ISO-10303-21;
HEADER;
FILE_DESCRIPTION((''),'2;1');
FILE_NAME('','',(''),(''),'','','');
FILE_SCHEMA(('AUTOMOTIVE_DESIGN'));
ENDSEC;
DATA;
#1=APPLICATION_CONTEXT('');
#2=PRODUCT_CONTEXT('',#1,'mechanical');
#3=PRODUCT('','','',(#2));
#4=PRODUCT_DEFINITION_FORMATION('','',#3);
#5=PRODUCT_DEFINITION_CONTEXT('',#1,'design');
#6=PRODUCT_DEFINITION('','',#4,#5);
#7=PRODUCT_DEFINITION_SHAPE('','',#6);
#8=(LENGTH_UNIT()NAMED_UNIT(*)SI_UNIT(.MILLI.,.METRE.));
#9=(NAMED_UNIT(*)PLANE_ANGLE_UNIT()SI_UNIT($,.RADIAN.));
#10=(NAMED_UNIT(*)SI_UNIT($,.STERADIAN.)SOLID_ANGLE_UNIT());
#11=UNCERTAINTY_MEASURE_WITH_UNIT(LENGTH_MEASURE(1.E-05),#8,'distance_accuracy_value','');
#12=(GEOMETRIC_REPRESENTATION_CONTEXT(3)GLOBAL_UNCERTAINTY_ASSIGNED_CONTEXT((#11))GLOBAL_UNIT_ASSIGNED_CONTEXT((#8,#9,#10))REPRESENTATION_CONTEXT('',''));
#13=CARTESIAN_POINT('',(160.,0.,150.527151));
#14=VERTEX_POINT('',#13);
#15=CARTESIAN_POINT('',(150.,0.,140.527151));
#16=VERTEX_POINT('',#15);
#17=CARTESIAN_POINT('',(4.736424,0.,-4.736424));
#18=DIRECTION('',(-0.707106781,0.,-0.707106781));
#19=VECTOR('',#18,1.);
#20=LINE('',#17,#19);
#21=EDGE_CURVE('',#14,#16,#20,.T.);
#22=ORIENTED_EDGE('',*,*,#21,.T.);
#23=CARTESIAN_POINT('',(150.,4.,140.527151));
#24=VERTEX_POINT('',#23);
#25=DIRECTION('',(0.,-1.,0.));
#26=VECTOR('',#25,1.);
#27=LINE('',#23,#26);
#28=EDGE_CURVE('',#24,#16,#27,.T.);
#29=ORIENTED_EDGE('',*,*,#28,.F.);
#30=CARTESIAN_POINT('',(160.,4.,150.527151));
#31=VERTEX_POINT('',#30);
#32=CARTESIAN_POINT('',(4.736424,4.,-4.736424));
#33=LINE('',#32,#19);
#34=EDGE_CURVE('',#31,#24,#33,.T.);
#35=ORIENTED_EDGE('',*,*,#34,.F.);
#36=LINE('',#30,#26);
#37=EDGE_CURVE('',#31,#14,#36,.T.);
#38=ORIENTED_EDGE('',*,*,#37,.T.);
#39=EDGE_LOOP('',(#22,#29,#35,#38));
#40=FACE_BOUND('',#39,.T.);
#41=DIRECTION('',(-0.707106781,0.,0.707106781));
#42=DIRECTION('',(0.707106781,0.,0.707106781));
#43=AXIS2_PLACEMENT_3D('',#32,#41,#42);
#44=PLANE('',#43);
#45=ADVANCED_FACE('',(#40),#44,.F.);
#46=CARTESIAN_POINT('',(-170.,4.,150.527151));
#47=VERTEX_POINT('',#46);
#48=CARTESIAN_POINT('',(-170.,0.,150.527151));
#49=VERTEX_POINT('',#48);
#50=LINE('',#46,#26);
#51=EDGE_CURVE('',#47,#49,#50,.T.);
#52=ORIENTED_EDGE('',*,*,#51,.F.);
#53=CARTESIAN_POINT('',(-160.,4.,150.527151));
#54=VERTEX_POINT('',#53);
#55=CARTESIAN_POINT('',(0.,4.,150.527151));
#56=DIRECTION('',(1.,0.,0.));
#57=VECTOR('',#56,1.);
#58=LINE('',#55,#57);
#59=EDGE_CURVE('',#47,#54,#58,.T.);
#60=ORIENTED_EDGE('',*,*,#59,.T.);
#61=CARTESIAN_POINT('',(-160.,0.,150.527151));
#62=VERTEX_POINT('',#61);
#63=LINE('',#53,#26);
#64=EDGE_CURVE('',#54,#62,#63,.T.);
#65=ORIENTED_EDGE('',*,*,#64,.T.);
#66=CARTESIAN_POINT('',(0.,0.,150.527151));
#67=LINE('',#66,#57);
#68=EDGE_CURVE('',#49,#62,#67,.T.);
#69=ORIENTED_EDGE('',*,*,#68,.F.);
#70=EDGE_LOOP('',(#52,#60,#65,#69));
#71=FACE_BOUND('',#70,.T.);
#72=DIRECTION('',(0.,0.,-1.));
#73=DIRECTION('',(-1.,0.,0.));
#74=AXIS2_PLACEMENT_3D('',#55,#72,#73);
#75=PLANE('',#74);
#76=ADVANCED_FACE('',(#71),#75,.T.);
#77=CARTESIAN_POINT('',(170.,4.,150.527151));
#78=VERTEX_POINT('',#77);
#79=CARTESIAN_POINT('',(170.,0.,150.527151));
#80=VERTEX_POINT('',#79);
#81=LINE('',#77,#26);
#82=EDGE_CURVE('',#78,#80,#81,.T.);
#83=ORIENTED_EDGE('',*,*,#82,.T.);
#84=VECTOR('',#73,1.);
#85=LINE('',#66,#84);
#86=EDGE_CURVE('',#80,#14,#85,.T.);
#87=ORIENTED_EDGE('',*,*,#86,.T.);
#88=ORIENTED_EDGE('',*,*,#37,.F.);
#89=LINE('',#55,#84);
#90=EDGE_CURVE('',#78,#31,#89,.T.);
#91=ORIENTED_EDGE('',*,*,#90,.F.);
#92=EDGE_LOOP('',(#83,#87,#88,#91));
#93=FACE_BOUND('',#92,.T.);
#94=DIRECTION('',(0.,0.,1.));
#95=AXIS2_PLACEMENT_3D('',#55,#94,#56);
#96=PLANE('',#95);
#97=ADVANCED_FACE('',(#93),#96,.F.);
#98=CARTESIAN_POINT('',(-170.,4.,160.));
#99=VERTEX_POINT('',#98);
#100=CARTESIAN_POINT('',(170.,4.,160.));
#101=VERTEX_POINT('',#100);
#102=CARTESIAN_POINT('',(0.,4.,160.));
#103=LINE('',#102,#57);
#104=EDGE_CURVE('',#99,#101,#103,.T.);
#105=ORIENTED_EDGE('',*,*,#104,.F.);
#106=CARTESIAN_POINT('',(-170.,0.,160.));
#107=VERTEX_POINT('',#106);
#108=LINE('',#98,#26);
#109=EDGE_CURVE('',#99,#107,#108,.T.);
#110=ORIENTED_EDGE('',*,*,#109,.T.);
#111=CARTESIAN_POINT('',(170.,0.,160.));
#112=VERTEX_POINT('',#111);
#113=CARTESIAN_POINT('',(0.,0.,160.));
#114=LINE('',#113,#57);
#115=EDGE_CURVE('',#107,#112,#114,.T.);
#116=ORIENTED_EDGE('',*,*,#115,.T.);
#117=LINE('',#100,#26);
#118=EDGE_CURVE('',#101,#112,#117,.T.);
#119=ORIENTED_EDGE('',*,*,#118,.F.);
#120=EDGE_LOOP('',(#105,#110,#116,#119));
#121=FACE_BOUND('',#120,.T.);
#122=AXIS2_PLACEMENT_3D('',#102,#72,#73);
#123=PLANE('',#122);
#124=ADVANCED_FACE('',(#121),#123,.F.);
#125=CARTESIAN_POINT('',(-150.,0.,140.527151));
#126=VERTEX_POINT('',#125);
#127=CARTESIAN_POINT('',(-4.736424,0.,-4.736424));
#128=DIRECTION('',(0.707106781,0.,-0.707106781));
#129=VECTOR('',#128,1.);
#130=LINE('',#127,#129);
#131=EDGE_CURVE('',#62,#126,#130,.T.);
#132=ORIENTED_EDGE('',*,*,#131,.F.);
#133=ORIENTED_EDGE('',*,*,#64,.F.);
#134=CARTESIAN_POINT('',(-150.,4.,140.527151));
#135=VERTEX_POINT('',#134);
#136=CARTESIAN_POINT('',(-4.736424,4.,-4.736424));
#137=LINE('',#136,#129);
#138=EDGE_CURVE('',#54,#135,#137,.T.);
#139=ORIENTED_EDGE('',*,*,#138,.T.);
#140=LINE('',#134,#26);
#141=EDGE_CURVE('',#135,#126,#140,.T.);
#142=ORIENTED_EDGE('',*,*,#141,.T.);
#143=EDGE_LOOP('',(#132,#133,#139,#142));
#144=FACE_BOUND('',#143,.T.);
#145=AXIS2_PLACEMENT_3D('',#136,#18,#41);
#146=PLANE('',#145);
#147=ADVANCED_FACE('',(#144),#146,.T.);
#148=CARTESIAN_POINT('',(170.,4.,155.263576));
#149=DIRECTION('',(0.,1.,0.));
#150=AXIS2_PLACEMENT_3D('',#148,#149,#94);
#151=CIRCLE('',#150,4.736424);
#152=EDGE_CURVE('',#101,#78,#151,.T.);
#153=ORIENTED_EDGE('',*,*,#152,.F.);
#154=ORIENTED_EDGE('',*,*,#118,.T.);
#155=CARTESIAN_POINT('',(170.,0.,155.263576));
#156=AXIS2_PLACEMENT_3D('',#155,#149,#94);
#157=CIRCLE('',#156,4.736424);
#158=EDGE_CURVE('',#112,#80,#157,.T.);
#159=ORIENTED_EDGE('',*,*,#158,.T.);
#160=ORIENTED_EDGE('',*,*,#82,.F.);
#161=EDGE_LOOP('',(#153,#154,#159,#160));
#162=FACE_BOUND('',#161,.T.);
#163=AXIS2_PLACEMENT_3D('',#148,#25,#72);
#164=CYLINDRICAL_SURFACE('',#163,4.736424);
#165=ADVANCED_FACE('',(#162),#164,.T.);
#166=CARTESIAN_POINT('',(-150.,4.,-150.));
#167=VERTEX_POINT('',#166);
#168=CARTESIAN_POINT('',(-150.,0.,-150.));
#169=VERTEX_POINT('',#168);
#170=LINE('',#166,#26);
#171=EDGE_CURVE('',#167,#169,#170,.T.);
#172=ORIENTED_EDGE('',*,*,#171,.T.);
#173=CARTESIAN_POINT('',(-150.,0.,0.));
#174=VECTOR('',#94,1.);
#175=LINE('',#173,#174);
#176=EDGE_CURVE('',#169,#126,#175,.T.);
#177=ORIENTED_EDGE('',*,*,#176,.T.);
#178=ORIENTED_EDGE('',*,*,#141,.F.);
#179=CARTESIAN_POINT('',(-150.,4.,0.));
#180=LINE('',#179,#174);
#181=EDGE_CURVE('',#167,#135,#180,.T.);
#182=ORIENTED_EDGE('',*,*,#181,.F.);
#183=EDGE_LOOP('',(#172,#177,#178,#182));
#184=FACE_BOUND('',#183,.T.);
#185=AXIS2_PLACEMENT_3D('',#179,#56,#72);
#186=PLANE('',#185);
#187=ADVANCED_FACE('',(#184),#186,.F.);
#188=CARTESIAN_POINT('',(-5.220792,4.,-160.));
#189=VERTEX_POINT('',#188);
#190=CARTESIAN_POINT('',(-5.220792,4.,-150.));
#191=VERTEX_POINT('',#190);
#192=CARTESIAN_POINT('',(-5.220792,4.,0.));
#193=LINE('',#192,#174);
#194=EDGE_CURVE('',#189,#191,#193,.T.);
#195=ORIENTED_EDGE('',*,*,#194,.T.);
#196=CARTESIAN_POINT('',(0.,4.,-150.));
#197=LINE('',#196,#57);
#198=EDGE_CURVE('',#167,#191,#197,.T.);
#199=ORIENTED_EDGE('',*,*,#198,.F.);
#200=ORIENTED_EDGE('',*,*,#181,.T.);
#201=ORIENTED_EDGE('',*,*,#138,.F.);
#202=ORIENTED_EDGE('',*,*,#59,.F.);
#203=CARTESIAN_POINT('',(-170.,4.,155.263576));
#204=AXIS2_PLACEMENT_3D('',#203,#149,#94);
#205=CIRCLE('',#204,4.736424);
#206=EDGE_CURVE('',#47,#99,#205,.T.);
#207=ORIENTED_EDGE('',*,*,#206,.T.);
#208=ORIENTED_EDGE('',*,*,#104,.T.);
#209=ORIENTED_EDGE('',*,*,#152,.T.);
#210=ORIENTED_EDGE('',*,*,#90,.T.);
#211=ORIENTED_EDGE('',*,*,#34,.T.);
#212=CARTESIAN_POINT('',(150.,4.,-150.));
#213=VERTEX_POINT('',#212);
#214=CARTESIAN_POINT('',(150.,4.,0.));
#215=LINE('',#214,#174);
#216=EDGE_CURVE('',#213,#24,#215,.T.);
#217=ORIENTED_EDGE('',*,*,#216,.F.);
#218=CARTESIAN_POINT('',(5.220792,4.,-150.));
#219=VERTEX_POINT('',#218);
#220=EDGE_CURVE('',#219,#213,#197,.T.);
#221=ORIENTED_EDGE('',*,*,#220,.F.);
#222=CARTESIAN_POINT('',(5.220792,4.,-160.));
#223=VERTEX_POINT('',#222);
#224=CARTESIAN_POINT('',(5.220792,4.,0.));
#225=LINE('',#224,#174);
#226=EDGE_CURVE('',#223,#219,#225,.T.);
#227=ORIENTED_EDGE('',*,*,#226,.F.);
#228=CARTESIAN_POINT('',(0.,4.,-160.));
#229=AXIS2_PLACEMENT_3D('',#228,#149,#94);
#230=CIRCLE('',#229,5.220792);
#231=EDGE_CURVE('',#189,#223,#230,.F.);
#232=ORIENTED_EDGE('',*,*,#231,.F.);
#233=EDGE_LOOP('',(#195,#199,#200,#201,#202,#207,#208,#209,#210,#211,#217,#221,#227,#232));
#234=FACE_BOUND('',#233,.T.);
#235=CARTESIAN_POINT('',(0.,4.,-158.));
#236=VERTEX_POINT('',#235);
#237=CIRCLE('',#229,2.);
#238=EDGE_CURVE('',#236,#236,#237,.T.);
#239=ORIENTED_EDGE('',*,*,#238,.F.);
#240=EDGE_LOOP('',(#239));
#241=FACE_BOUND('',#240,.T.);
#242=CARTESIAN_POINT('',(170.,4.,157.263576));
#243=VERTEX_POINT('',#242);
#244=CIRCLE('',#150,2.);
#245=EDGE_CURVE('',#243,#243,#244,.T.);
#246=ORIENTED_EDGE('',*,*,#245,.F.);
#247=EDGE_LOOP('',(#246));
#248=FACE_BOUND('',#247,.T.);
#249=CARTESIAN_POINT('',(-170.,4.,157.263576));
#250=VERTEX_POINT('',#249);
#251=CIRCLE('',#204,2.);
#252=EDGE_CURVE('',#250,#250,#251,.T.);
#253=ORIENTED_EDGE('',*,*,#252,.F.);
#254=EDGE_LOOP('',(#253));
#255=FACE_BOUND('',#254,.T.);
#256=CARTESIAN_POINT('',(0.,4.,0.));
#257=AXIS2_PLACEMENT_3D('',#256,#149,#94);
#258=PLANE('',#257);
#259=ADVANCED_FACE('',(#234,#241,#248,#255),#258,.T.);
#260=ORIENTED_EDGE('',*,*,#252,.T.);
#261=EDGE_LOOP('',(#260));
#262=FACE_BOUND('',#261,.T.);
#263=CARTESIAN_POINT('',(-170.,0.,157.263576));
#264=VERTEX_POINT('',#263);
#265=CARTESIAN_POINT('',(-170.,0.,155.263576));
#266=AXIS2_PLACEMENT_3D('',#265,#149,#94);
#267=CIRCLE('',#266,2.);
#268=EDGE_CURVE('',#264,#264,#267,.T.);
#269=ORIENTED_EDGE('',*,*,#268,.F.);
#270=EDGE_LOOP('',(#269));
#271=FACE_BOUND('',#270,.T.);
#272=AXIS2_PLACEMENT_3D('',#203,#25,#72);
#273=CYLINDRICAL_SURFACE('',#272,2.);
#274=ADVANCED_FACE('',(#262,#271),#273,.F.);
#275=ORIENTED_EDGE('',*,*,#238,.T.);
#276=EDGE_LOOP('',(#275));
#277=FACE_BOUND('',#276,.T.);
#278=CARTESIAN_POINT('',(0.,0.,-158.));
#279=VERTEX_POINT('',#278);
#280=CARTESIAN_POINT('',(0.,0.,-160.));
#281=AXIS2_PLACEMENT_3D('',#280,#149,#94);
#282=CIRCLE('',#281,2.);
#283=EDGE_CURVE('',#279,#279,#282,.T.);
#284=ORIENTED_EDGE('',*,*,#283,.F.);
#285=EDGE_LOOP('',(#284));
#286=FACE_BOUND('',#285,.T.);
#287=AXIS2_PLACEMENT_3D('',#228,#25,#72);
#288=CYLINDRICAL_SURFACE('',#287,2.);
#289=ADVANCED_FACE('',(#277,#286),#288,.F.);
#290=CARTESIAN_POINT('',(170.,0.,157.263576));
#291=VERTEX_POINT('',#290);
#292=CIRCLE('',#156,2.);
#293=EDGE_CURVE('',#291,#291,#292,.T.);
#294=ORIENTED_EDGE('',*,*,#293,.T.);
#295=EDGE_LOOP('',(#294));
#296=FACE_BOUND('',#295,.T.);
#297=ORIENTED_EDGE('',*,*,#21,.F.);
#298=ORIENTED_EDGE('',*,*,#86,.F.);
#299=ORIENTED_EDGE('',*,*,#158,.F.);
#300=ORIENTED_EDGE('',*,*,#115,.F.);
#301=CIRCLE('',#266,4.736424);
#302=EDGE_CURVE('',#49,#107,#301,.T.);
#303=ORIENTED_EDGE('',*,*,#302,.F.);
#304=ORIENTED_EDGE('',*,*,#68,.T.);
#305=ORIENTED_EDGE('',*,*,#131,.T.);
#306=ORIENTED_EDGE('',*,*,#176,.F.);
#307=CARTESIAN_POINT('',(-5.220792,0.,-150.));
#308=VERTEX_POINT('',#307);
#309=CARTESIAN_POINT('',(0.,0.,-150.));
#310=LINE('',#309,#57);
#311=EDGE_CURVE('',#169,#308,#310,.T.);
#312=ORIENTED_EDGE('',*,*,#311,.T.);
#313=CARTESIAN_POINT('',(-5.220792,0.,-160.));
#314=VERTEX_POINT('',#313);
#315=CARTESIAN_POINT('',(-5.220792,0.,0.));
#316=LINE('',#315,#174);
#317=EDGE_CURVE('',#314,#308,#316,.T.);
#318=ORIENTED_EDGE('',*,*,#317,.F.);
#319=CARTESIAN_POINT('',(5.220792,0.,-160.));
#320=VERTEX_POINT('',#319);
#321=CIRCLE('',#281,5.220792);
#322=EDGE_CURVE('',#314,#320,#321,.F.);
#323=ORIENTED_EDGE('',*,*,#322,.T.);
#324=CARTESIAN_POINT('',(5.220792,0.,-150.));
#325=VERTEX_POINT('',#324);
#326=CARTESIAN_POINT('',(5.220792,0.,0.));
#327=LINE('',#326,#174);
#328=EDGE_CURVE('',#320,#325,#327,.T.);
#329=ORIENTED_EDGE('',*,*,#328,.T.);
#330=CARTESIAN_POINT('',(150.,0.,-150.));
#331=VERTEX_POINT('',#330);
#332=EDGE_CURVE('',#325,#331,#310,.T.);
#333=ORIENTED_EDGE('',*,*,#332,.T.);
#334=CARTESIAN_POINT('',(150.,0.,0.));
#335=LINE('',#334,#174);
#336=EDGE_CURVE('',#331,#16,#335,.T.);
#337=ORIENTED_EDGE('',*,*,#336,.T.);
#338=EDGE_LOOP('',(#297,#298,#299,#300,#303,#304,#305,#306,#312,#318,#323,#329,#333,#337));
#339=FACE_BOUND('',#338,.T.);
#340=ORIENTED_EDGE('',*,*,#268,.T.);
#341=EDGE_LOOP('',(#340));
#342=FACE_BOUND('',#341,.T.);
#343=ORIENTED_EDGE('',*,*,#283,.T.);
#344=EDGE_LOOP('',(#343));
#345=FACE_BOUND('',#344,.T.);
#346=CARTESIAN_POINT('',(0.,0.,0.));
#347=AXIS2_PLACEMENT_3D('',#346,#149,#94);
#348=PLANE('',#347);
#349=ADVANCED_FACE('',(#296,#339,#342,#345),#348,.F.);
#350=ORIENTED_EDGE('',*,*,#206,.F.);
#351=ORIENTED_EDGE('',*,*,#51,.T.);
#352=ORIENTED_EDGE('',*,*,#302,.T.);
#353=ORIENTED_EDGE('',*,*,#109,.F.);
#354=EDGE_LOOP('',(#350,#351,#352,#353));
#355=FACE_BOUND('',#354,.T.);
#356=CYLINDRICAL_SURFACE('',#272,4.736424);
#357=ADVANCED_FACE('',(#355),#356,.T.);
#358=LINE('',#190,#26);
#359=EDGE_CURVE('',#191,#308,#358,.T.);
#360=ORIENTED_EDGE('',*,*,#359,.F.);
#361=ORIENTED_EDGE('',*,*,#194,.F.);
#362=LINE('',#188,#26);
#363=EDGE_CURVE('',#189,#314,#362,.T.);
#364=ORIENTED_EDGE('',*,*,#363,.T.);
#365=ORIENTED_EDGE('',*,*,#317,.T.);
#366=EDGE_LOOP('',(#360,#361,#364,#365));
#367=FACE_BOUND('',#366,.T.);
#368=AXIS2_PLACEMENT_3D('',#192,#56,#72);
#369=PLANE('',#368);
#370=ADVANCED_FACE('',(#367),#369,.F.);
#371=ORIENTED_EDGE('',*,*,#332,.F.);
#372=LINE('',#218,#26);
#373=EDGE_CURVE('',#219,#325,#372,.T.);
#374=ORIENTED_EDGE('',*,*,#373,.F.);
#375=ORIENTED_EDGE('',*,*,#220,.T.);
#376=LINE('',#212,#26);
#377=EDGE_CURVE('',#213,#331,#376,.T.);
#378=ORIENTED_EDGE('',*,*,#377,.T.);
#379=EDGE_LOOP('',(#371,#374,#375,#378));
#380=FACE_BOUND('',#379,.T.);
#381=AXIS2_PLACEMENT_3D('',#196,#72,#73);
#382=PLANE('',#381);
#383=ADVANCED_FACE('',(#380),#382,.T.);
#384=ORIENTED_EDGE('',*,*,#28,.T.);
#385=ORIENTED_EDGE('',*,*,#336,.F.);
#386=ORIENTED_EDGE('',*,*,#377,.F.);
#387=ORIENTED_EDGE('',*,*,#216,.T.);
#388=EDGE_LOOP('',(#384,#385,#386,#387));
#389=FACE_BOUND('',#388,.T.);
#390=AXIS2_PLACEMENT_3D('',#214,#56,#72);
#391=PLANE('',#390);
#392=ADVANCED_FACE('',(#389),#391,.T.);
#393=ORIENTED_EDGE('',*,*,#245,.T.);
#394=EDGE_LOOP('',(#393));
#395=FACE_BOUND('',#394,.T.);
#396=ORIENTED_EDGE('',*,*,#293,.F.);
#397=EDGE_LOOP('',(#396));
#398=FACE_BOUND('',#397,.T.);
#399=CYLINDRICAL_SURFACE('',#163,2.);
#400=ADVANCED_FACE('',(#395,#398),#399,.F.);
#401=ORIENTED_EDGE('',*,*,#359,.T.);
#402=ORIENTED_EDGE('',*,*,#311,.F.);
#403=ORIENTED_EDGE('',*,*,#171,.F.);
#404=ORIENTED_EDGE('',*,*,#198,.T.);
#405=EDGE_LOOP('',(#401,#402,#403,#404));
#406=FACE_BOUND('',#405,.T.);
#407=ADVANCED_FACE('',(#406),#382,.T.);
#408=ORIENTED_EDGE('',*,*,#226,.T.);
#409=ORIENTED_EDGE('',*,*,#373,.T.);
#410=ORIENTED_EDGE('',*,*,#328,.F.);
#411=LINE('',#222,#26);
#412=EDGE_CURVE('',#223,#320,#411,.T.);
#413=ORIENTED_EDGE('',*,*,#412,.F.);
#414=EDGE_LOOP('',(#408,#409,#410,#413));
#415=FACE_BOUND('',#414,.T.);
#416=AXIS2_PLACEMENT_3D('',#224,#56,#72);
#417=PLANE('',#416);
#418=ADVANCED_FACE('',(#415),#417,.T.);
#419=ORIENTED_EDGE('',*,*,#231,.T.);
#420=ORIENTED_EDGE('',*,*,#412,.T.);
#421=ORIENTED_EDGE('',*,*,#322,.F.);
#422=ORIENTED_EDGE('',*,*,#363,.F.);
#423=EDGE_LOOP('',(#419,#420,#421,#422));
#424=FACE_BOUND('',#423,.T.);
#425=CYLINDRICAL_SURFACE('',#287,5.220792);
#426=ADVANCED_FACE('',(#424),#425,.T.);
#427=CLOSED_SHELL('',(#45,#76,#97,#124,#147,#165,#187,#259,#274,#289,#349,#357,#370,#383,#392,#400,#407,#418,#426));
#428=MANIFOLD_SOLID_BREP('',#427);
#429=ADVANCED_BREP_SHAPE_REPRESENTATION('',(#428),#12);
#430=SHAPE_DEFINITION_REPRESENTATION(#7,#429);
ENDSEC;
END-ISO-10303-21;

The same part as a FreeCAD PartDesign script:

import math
import FreeCAD as App
import Part
import Sketcher

doc = App.newDocument("Part")
body = doc.addObject("PartDesign::Body", "Body")

sketch1 = body.newObject("Sketcher::SketchObject", "Sketch")
sketch1.AttachmentSupport = (doc.getObject("XZ_Plane"), [""])
sketch1.MapMode = "FlatFace"
sketch1.addGeometry([
    Part.ArcOfCircle(Part.Circle(App.Vector(0, -160, 0), App.Vector(0, 0, 1), 5.2), math.radians(180), math.radians(360)),
    Part.LineSegment(App.Vector(-5.2, -160, 0), App.Vector(-5.2, -150, 0)),
    Part.LineSegment(App.Vector(-5.2, -150, 0), App.Vector(-150, -150, 0)),
    Part.LineSegment(App.Vector(-150, -150, 0), App.Vector(-150, 140.5, 0)),
    Part.LineSegment(App.Vector(-150, 140.5, 0), App.Vector(-160, 150.5, 0)),
    Part.LineSegment(App.Vector(-160, 150.5, 0), App.Vector(-170, 150.5, 0)),
    Part.ArcOfCircle(Part.Circle(App.Vector(-170, 155.3, 0), App.Vector(0, 0, 1), 4.7), math.radians(90), math.radians(270)),
    Part.LineSegment(App.Vector(-170, 160, 0), App.Vector(170, 160, 0)),
    Part.ArcOfCircle(Part.Circle(App.Vector(170, 155.3, 0), App.Vector(0, 0, 1), 4.7), math.radians(-90), math.radians(90)),
    Part.LineSegment(App.Vector(170, 150.5, 0), App.Vector(160, 150.5, 0)),
    Part.LineSegment(App.Vector(160, 150.5, 0), App.Vector(150, 140.5, 0)),
    Part.LineSegment(App.Vector(150, 140.5, 0), App.Vector(150, -150, 0)),
    Part.LineSegment(App.Vector(150, -150, 0), App.Vector(5.2, -150, 0)),
    Part.LineSegment(App.Vector(5.2, -150, 0), App.Vector(5.2, -160, 0)),
    Part.Circle(App.Vector(170, 155.3, 0), App.Vector(0, 0, 1), 2),
    Part.Circle(App.Vector(-170, 155.3, 0), App.Vector(0, 0, 1), 2),
    Part.Circle(App.Vector(0, -160, 0), App.Vector(0, 0, 1), 2),
], False)
sketch1.addConstraint([
    Sketcher.Constraint("Tangent", 0, 1, 1, 1),
    Sketcher.Constraint("Coincident", 1, 2, 2, 1),
    Sketcher.Constraint("Coincident", 2, 2, 3, 1),
    Sketcher.Constraint("Coincident", 3, 2, 4, 1),
    Sketcher.Constraint("Coincident", 4, 2, 5, 1),
    Sketcher.Constraint("Tangent", 5, 2, 6, 2),
    Sketcher.Constraint("Tangent", 6, 1, 7, 1),
    Sketcher.Constraint("Tangent", 7, 2, 8, 2),
    Sketcher.Constraint("Tangent", 8, 1, 9, 1),
    Sketcher.Constraint("Coincident", 9, 2, 10, 1),
    Sketcher.Constraint("Coincident", 10, 2, 11, 1),
    Sketcher.Constraint("Coincident", 11, 2, 12, 1),
    Sketcher.Constraint("Coincident", 12, 2, 13, 1),
    Sketcher.Constraint("Tangent", 13, 2, 0, 2),
    Sketcher.Constraint("Vertical", 1),
    Sketcher.Constraint("Horizontal", 2),
    Sketcher.Constraint("Vertical", 3),
    Sketcher.Constraint("Horizontal", 5),
    Sketcher.Constraint("Horizontal", 7),
    Sketcher.Constraint("Horizontal", 9),
    Sketcher.Constraint("Vertical", 11),
    Sketcher.Constraint("Horizontal", 12),
    Sketcher.Constraint("Vertical", 13),
    Sketcher.Constraint("Coincident", 14, 3, 8, 3),
    Sketcher.Constraint("Coincident", 15, 3, 6, 3),
    Sketcher.Constraint("Coincident", 16, 3, 0, 3),
    Sketcher.Constraint("Equal", 6, 8),
    Sketcher.Constraint("Equal", 14, 15),
    Sketcher.Constraint("Equal", 15, 16),
    Sketcher.Constraint("Symmetric", 3, 2, 10, 2, -2),
    Sketcher.Constraint("Symmetric", 1, 2, 12, 2, -2),
    Sketcher.Constraint("Perpendicular", 4, 10),
    Sketcher.Constraint("Equal", 5, 9),
    Sketcher.Constraint("Equal", 9, 1),
    Sketcher.Constraint("Equal", 4, 10),
    Sketcher.Constraint("Diameter", 14, 4.0),
    Sketcher.Constraint("DistanceX", 5, 2, 5, 1, 10.0),
    Sketcher.Constraint("DistanceX", 7, 1, 7, 2, 340.0),
    Sketcher.Constraint("DistanceY", 0, 3, -1, 1, 160.0),
    Sketcher.Constraint("DistanceX", 2, 2, -1, 1, 150.0),
    Sketcher.Constraint("DistanceY", -1, 1, 6, 1, 160.0),
    Sketcher.Constraint("Radius", 0, 5.220792),
    Sketcher.Constraint("Radius", 6, 4.736424),
])
pad1 = body.newObject("PartDesign::Pad", "Pad")
pad1.Profile = sketch1
pad1.Length = 4
pad1.Reversed = True

doc.recompute()
